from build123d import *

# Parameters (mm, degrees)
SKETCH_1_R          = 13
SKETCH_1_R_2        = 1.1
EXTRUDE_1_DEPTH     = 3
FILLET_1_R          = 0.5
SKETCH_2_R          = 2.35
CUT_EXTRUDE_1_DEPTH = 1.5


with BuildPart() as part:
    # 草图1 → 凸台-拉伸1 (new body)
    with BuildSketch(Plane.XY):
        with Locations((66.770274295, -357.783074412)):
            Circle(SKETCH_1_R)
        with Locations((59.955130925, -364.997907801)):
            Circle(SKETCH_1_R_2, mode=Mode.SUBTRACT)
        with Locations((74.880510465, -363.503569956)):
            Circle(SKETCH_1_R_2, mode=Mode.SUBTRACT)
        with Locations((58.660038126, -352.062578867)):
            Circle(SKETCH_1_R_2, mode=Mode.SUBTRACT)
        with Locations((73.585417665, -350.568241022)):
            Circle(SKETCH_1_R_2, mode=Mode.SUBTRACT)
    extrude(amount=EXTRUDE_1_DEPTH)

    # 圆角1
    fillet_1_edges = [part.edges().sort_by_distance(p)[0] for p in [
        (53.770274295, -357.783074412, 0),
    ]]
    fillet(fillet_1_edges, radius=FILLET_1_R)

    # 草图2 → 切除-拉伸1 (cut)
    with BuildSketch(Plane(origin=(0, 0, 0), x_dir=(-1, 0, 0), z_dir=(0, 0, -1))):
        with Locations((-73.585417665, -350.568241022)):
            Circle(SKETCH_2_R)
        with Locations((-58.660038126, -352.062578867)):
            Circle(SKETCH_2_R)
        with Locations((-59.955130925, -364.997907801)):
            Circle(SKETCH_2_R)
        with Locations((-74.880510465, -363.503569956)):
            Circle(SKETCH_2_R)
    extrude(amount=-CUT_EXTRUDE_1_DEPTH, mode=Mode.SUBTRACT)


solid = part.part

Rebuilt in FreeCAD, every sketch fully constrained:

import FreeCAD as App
import Part
import Sketcher
from FreeCAD import Vector
Q = App.Units.Quantity


def edges_at(feature, points):
    """Names of the edges that pass closest to the given points."""
    edges = feature.Shape.Edges
    near = lambda p: min(range(len(edges)), key=lambda i: edges[i].distToShape(Part.Vertex(*p))[0])
    return sorted({f"Edge{near(p) + 1}" for p in points})

doc = App.newDocument("Part")
body = doc.addObject("PartDesign::Body", "Body")

sketch1 = body.newObject("Sketcher::SketchObject", "Sketch")
sketch1.AttachmentSupport = (doc.getObject("XY_Plane"), [""])
sketch1.MapMode = "FlatFace"
sketch1.addGeometry([
    Part.Circle(Vector(66.8, -357.8, 0), Vector(0, 0, 1), 13),
    Part.Circle(Vector(60, -365, 0), Vector(0, 0, 1), 1.1),
    Part.Circle(Vector(74.9, -363.5, 0), Vector(0, 0, 1), 1.1),
    Part.Circle(Vector(58.7, -352.1, 0), Vector(0, 0, 1), 1.1),
    Part.Circle(Vector(73.6, -350.6, 0), Vector(0, 0, 1), 1.1),
], False)
sketch1.addConstraint([
    Sketcher.Constraint("Equal", 1, 2),
    Sketcher.Constraint("Equal", 2, 3),
    Sketcher.Constraint("Equal", 3, 4),
    Sketcher.Constraint("Diameter", 0, Q("26 mm")),
    Sketcher.Constraint("Diameter", 1, Q("2.2 mm")),
    Sketcher.Constraint("DistanceX", -1, 1, 1, 3, Q("59.955131 mm")),
    Sketcher.Constraint("DistanceX", -1, 1, 2, 3, Q("74.88051 mm")),
    Sketcher.Constraint("DistanceY", 2, 3, -1, 1, Q("363.50357 mm")),
    Sketcher.Constraint("DistanceX", -1, 1, 3, 3, Q("58.660038 mm")),
    Sketcher.Constraint("DistanceY", 3, 3, -1, 1, Q("352.062579 mm")),
    Sketcher.Constraint("DistanceY", 4, 3, -1, 1, Q("350.568241 mm")),
    Sketcher.Constraint("DistanceY", 1, 3, 3, 3, Q("12.935329 mm")),
    Sketcher.Constraint("DistanceX", 3, 3, 4, 3, Q("14.92538 mm")),
    Sketcher.Constraint("DistanceX", -1, 1, 0, 3, Q("66.770274 mm")),
    Sketcher.Constraint("DistanceY", 0, 3, -1, 1, Q("357.783074 mm")),
])
pad1 = body.newObject("PartDesign::Pad", "Pad")
pad1.Profile = sketch1
pad1.Length = 3
doc.recompute()

fillet = body.newObject("PartDesign::Fillet", "Fillet")
fillet.Base = (pad1, edges_at(pad1, [(53.77, -357.783, 0)]))
fillet.Radius = 0.5

sketch2 = body.newObject("Sketcher::SketchObject", "Sketch001")
sketch2.AttachmentSupport = (doc.getObject("XY_Plane"), [""])
sketch2.MapMode = "FlatFace"
sketch2.addGeometry([
    Part.Circle(Vector(73.6, -350.6, 0), Vector(0, 0, 1), 2.4),
    Part.Circle(Vector(58.7, -352.1, 0), Vector(0, 0, 1), 2.4),
    Part.Circle(Vector(60, -365, 0), Vector(0, 0, 1), 2.4),
    Part.Circle(Vector(74.9, -363.5, 0), Vector(0, 0, 1), 2.4),
], False)
sketch2.addConstraint([
    Sketcher.Constraint("Equal", 0, 1),
    Sketcher.Constraint("Equal", 1, 2),
    Sketcher.Constraint("Equal", 2, 3),
    Sketcher.Constraint("Diameter", 0, Q("4.7 mm")),
    Sketcher.Constraint("DistanceY", 0, 3, -1, 1, Q("350.568241 mm")),
    Sketcher.Constraint("DistanceX", -1, 1, 1, 3, Q("58.660038 mm")),
    Sketcher.Constraint("DistanceY", 1, 3, -1, 1, Q("352.062579 mm")),
    Sketcher.Constraint("DistanceX", -1, 1, 2, 3, Q("59.955131 mm")),
    Sketcher.Constraint("DistanceX", -1, 1, 3, 3, Q("74.88051 mm")),
    Sketcher.Constraint("DistanceY", 3, 3, -1, 1, Q("363.50357 mm")),
    Sketcher.Constraint("DistanceX", 1, 3, 0, 3, Q("14.92538 mm")),
    Sketcher.Constraint("DistanceY", 2, 3, 1, 3, Q("12.935329 mm")),
])
pocket1 = body.newObject("PartDesign::Pocket", "Pocket")
pocket1.Profile = sketch2
pocket1.Length = 1.5
pocket1.Reversed = True

doc.recompute()
